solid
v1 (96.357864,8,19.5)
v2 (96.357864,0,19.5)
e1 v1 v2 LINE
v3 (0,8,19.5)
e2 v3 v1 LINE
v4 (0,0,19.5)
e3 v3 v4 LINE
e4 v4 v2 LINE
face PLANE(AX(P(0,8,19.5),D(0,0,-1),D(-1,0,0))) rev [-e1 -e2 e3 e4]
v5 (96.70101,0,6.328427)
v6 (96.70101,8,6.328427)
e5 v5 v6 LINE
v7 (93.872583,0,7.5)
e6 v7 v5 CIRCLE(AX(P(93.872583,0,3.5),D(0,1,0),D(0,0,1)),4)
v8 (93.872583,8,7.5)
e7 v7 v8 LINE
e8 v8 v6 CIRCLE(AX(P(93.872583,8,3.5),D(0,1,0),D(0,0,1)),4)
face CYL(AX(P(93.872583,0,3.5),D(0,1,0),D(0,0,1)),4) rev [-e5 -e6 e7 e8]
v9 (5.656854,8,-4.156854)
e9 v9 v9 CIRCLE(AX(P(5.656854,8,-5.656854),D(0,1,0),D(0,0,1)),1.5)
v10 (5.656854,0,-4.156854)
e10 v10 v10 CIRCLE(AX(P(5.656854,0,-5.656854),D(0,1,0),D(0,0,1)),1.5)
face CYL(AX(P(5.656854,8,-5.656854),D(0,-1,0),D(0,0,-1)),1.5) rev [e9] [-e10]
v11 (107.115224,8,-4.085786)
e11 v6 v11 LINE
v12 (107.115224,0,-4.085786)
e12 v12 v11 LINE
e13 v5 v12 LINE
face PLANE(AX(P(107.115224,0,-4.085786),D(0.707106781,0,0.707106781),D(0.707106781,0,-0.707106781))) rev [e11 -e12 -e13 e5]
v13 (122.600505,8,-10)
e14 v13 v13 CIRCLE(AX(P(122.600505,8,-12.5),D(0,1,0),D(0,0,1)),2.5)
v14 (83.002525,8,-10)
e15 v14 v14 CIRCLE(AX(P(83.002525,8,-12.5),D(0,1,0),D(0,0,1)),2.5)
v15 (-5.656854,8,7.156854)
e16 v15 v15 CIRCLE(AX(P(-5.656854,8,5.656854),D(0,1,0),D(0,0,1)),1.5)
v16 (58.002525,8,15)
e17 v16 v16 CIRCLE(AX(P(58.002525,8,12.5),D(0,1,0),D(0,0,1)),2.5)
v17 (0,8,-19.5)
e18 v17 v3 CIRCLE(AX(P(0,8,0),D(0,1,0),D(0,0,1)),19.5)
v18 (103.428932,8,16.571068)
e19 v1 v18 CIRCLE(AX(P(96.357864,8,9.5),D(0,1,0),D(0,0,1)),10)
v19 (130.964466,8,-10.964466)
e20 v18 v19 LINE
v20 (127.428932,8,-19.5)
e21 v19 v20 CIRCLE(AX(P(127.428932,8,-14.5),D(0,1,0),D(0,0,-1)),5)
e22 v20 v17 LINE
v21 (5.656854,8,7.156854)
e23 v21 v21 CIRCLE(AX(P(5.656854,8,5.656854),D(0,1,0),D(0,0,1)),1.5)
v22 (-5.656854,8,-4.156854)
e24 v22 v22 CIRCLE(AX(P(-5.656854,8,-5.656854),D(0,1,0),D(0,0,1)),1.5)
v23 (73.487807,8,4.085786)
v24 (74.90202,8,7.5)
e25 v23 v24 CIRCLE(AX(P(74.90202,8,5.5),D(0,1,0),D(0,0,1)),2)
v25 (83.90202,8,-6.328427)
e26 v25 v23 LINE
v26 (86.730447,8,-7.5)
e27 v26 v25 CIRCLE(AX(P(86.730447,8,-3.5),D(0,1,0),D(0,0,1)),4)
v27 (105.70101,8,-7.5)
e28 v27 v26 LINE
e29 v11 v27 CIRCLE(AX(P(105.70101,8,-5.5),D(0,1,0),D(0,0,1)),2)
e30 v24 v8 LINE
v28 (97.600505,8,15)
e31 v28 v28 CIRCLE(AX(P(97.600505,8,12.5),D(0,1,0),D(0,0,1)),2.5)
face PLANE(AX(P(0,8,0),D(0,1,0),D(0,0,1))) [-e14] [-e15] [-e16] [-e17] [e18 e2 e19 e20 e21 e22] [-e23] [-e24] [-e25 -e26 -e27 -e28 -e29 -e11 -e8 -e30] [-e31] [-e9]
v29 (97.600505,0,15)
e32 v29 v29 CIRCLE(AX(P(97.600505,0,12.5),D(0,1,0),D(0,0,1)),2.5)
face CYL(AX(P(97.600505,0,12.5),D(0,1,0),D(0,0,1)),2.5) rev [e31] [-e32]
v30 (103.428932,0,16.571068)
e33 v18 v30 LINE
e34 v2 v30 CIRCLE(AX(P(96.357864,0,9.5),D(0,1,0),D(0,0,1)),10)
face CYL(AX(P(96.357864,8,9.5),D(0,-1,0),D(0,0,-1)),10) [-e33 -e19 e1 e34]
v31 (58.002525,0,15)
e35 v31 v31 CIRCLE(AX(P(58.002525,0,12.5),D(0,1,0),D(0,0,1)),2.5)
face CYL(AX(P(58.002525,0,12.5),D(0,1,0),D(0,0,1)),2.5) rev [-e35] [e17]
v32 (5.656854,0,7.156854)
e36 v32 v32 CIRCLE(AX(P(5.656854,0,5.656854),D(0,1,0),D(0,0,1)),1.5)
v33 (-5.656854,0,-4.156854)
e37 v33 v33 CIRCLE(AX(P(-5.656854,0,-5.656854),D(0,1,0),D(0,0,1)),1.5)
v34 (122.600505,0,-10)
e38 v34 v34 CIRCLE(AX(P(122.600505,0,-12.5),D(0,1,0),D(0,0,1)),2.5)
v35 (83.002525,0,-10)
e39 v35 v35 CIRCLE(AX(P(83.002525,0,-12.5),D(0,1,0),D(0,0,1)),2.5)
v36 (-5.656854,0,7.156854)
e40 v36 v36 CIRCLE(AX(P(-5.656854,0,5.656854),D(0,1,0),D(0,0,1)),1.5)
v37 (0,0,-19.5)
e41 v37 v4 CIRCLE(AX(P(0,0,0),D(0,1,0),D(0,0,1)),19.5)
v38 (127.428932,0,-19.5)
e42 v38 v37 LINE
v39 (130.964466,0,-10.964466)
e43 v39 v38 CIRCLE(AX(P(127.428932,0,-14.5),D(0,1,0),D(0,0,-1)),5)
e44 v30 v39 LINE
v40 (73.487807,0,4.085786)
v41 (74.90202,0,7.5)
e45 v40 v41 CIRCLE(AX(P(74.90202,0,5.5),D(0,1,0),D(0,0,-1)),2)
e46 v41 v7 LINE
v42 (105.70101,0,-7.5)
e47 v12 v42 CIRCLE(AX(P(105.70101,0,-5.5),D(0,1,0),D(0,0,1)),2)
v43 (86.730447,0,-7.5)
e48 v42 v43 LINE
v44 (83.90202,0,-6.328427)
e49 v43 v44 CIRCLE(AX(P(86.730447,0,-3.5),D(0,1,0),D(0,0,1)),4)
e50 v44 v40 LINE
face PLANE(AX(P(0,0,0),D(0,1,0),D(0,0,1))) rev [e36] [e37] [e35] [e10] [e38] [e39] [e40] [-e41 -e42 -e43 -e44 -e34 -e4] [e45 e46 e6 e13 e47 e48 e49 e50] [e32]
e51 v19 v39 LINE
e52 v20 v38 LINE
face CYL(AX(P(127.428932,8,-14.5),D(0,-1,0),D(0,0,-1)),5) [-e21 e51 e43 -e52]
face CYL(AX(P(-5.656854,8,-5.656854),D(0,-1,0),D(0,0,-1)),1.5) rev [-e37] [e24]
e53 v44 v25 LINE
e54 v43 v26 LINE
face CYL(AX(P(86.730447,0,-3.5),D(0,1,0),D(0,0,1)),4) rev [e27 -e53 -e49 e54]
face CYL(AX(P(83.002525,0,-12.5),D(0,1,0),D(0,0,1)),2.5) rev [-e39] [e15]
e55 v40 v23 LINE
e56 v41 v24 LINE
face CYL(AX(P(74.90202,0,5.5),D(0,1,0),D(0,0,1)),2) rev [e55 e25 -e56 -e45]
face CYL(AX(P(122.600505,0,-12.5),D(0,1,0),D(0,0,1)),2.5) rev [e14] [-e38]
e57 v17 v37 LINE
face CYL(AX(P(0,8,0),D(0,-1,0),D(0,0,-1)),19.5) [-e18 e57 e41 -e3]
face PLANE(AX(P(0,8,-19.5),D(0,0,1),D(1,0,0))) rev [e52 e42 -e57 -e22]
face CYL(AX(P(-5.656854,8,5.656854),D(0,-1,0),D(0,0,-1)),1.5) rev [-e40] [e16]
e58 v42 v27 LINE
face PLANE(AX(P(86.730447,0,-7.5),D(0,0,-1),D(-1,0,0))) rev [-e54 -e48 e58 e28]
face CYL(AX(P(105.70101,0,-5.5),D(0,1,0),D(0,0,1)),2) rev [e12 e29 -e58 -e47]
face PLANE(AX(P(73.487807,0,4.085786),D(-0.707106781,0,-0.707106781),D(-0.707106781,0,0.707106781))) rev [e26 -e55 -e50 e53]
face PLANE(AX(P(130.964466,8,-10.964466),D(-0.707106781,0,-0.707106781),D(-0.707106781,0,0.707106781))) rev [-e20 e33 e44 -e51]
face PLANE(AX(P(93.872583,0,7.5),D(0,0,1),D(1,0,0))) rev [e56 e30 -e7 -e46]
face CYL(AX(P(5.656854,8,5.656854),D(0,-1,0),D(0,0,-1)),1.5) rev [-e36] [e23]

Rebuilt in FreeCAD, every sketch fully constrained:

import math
import FreeCAD as App
import Part
import Sketcher
Q = App.Units.Quantity

doc = App.newDocument("Part")
body = doc.addObject("PartDesign::Body", "Body")

sketch1 = body.newObject("Sketcher::SketchObject", "Sketch")
sketch1.AttachmentSupport = (doc.getObject("XZ_Plane"), [""])
sketch1.MapMode = "FlatFace"
sketch1.addGeometry(Part.LineSegment(App.Vector(127.4, -19.5, 0), App.Vector(0, -19.5, 0)), False)
sketch1.addGeometry(Part.ArcOfCircle(Part.Circle(App.Vector(0, 0, 0), App.Vector(0, 0, 1), 19.5), math.radians(90), math.radians(270)), False)
sketch1.addGeometry(Part.LineSegment(App.Vector(0, 19.5, 0), App.Vector(96.4, 19.5, 0)), False)
sketch1.addGeometry(Part.ArcOfCircle(Part.Circle(App.Vector(96.4, 9.5, 0), App.Vector(0, 0, 1), 10), math.radians(45), math.radians(90)), False)
sketch1.addGeometry(Part.LineSegment(App.Vector(103.4, 16.6, 0), App.Vector(131, -11, 0)), False)
sketch1.addGeometry(Part.ArcOfCircle(Part.Circle(App.Vector(127.4, -14.5, 0), App.Vector(0, 0, 1), 5), math.radians(-90), math.radians(45)), False)
sketch1.addGeometry(Part.Circle(App.Vector(5.7, 5.7, 0), App.Vector(0, 0, 1), 1.5), False)
sketch1.addGeometry(Part.Circle(App.Vector(-5.7, 5.7, 0), App.Vector(0, 0, 1), 1.5), False)
sketch1.addGeometry(Part.Circle(App.Vector(5.7, -5.7, 0), App.Vector(0, 0, 1), 1.5), False)
sketch1.addGeometry(Part.Circle(App.Vector(-5.7, -5.7, 0), App.Vector(0, 0, 1), 1.5), False)
sketch1.addConstraint(Sketcher.Constraint("Tangent", 0, 2, 1, 2))
sketch1.addConstraint(Sketcher.Constraint("Tangent", 1, 1, 2, 1))
sketch1.addConstraint(Sketcher.Constraint("Tangent", 2, 2, 3, 2))
sketch1.addConstraint(Sketcher.Constraint("Tangent", 3, 1, 4, 1))
sketch1.addConstraint(Sketcher.Constraint("Tangent", 4, 2, 5, 2))
sketch1.addConstraint(Sketcher.Constraint("Tangent", 5, 1, 0, 1))
sketch1.addConstraint(Sketcher.Constraint("Horizontal", 0))
sketch1.addConstraint(Sketcher.Constraint("Horizontal", 2))
sketch1.addConstraint(Sketcher.Constraint("Coincident", 1, 3, -1, 1))
sketch1.addConstraint(Sketcher.Constraint("Equal", 6, 7))
sketch1.addConstraint(Sketcher.Constraint("Equal", 7, 8))
sketch1.addConstraint(Sketcher.Constraint("Equal", 8, 9))
sketch1.addConstraint(Sketcher.Constraint("Symmetric", 7, 3, 8, 3, -1, 1))
sketch1.addConstraint(Sketcher.Constraint("Symmetric", 6, 3, 9, 3, -1, 1))
sketch1.addConstraint(Sketcher.Constraint("Symmetric", 6, 3, 7, 3, -2))
sketch1.addConstraint(Sketcher.Constraint("Diameter", 6, Q("3 mm")))
sketch1.addConstraint(Sketcher.Constraint("Radius", 3, Q("10 mm")))
sketch1.addConstraint(Sketcher.Constraint("Radius", 5, Q("5 mm")))
sketch1.addConstraint(Sketcher.Constraint("Radius", 1, Q("19.5 mm")))
sketch1.addConstraint(Sketcher.Constraint("Angle", 4, Q("-45 deg")))
sketch1.addConstraint(Sketcher.Constraint("DistanceX", 0, 2, 0, 1, Q("127.428932 mm")))
sketch1.addConstraint(Sketcher.Constraint("DistanceX", 6, 3, 3, 3, Q("90.70101 mm")))
sketch1.addConstraint(Sketcher.Constraint("DistanceY", 8, 3, 6, 3, Q("11.313708 mm")))
pad1 = body.newObject("PartDesign::Pad", "Pad")
pad1.Profile = sketch1
pad1.Length = 8
pad1.Reversed = True

sketch2 = body.newObject("Sketcher::SketchObject", "Sketch001")
sketch2.AttachmentSupport = (doc.getObject("XZ_Plane"), [""])
sketch2.MapMode = "FlatFace"
sketch2.AttachmentOffset = App.Placement(App.Vector(0, 0, -8), App.Rotation())
sketch2.addGeometry(Part.LineSegment(App.Vector(83.9, -6.3, 0), App.Vector(73.5, 4.1, 0)), False)
sketch2.addGeometry(Part.ArcOfCircle(Part.Circle(App.Vector(74.9, 5.5, 0), App.Vector(0, 0, 1), 2), math.radians(90), math.radians(225)), False)
sketch2.addGeometry(Part.LineSegment(App.Vector(74.9, 7.5, 0), App.Vector(93.9, 7.5, 0)), False)
sketch2.addGeometry(Part.ArcOfCircle(Part.Circle(App.Vector(93.9, 3.5, 0), App.Vector(0, 0, 1), 4), math.radians(45), math.radians(90)), False)
sketch2.addGeometry(Part.LineSegment(App.Vector(96.7, 6.3, 0), App.Vector(107.1, -4.1, 0)), False)
sketch2.addGeometry(Part.ArcOfCircle(Part.Circle(App.Vector(105.7, -5.5, 0), App.Vector(0, 0, 1), 2), math.radians(-90), math.radians(45)), False)
sketch2.addGeometry(Part.LineSegment(App.Vector(105.7, -7.5, 0), App.Vector(86.7, -7.5, 0)), False)
sketch2.addGeometry(Part.ArcOfCircle(Part.Circle(App.Vector(86.7, -3.5, 0), App.Vector(0, 0, 1), 4), math.radians(-135), math.radians(-90)), False)
sketch2.addConstraint(Sketcher.Constraint("Tangent", 0, 2, 1, 2))
sketch2.addConstraint(Sketcher.Constraint("Tangent", 1, 1, 2, 1))
sketch2.addConstraint(Sketcher.Constraint("Tangent", 2, 2, 3, 2))
sketch2.addConstraint(Sketcher.Constraint("Tangent", 3, 1, 4, 1))
sketch2.addConstraint(Sketcher.Constraint("Tangent", 4, 2, 5, 2))
sketch2.addConstraint(Sketcher.Constraint("Tangent", 5, 1, 6, 1))
sketch2.addConstraint(Sketcher.Constraint("Tangent", 6, 2, 7, 2))
sketch2.addConstraint(Sketcher.Constraint("Tangent", 7, 1, 0, 1))
sketch2.addConstraint(Sketcher.Constraint("Horizontal", 2))
sketch2.addConstraint(Sketcher.Constraint("Horizontal", 6))
sketch2.addConstraint(Sketcher.Constraint("Equal", 1, 5))
sketch2.addConstraint(Sketcher.Constraint("Equal", 3, 7))
sketch2.addConstraint(Sketcher.Constraint("Parallel", 0, 4))
sketch2.addConstraint(Sketcher.Constraint("Radius", 1, Q("2 mm")))
sketch2.addConstraint(Sketcher.Constraint("Radius", 3, Q("4 mm")))
sketch2.addConstraint(Sketcher.Constraint("Angle", 0, Q("135 deg")))
sketch2.addConstraint(Sketcher.Constraint("DistanceY", 5, 3, 3, 3, Q("9 mm")))
sketch2.addConstraint(Sketcher.Constraint("DistanceY", -1, 1, 1, 3, Q("5.5 mm")))
sketch2.addConstraint(Sketcher.Constraint("DistanceX", 2, 1, 2, 2, Q("18.970563 mm")))
sketch2.addConstraint(Sketcher.Constraint("DistanceX", -1, 1, 1, 3, Q("74.90202 mm")))
pocket1 = body.newObject("PartDesign::Pocket", "Pocket")
pocket1.Profile = sketch2
pocket1.Type = "ThroughAll"
pocket1.Midplane = True

sketch3 = body.newObject("Sketcher::SketchObject", "Sketch002")
sketch3.AttachmentSupport = (doc.getObject("XZ_Plane"), [""])
sketch3.MapMode = "FlatFace"
sketch3.AttachmentOffset = App.Placement(App.Vector(0, 0, -8), App.Rotation())
sketch3.addGeometry(Part.Circle(App.Vector(58, 12.5, 0), App.Vector(0, 0, 1), 2.5), False)
sketch3.addGeometry(Part.Circle(App.Vector(83, -12.5, 0), App.Vector(0, 0, 1), 2.5), False)
sketch3.addGeometry(Part.Circle(App.Vector(97.6, 12.5, 0), App.Vector(0, 0, 1), 2.5), False)
sketch3.addGeometry(Part.Circle(App.Vector(122.6, -12.5, 0), App.Vector(0, 0, 1), 2.5), False)
sketch3.addConstraint(Sketcher.Constraint("Equal", 0, 1))
sketch3.addConstraint(Sketcher.Constraint("Equal", 1, 2))
sketch3.addConstraint(Sketcher.Constraint("Equal", 2, 3))
sketch3.addConstraint(Sketcher.Constraint("Horizontal", 0, 3, 2, 3))
sketch3.addConstraint(Sketcher.Constraint("Horizontal", 1, 3, 3, 3))
sketch3.addConstraint(Sketcher.Constraint("Diameter", 0, Q("5 mm")))
sketch3.addConstraint(Sketcher.Constraint("DistanceX", 0, 3, 1, 3, Q("25 mm")))
sketch3.addConstraint(Sketcher.Constraint("DistanceY", 1, 3, 0, 3, Q("25 mm")))
sketch3.addConstraint(Sketcher.Constraint("DistanceX", 2, 3, 3, 3, Q("25 mm")))
sketch3.addConstraint(Sketcher.Constraint("DistanceY", -1, 1, 0, 3, Q("12.5 mm")))
sketch3.addConstraint(Sketcher.Constraint("DistanceX", 1, 3, 2, 3, Q("14.59798 mm")))
sketch3.addConstraint(Sketcher.Constraint("DistanceX", -1, 1, 0, 3, Q("58.002525 mm")))
pocket2 = body.newObject("PartDesign::Pocket", "Pocket001")
pocket2.Profile = sketch3
pocket2.Type = "ThroughAll"
pocket2.Midplane = True

doc.recompute()
